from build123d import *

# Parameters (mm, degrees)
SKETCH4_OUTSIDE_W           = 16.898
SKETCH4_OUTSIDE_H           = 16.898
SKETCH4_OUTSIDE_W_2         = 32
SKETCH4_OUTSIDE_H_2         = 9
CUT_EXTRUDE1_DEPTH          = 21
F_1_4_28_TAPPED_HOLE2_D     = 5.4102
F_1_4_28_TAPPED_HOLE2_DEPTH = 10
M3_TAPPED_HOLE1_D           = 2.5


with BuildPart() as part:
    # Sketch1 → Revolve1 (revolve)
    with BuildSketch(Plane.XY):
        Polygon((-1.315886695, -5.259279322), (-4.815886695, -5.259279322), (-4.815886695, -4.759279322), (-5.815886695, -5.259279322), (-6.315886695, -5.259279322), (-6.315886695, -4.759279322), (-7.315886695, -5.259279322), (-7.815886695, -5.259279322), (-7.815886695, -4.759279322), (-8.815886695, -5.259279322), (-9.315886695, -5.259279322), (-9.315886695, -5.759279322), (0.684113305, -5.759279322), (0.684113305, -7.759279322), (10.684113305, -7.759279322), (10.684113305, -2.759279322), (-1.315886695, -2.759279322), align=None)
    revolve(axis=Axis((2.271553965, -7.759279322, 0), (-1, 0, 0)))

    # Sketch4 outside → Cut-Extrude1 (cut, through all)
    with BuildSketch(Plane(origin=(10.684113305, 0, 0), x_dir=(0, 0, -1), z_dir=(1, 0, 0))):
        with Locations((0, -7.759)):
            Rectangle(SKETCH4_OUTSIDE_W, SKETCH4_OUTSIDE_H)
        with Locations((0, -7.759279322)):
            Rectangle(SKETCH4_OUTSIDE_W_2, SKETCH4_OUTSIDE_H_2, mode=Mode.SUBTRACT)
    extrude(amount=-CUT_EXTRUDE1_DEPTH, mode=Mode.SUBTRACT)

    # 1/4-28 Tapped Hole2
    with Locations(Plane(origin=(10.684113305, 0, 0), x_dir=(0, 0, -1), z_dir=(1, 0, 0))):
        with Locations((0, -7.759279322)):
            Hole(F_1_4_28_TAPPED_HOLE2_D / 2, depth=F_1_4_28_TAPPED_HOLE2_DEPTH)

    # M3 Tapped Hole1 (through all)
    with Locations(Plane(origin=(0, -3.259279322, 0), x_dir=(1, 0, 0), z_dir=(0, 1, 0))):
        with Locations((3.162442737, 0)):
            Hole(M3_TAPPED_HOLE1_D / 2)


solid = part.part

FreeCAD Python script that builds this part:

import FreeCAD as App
import Part
import Sketcher

V = App.Vector
Q = App.Units.Quantity


def add_polygon(sketch, points):
    """Adds a closed chain of lines whose ends are joined by coincident constraints."""
    first, n = sketch.GeometryCount, len(points)
    for a, b in zip(points, points[1:] + points[:1]):
        sketch.addGeometry(Part.LineSegment(App.Vector(*a, 0), App.Vector(*b, 0)), False)
    for i in range(n):
        sketch.addConstraint(Sketcher.Constraint("Coincident", first + i, 2, first + (i + 1) % n, 1))

doc = App.newDocument("Part")
body = doc.addObject("PartDesign::Body", "Body")

sketch1 = body.newObject("Sketcher::SketchObject", "Sketch")
sketch1.AttachmentSupport = (doc.getObject("XY_Plane"), [""])
sketch1.MapMode = "FlatFace"
add_polygon(sketch1, [(-1.3, -5.3), (-4.8, -5.3), (-4.8, -4.8), (-5.8, -5.3), (-6.3, -5.3), (-6.3, -4.8), (-7.3, -5.3), (-7.8, -5.3), (-7.8, -4.8), (-8.8, -5.3), (-9.3, -5.3), (-9.3, -5.8), (0.7, -5.8), (0.7, -7.8), (10.7, -7.8), (10.7, -2.8), (-1.3, -2.8)])
sketch1.addGeometry(Part.LineSegment(V(10.7, -7.8, 0), V(-9.3, -7.8, 0)), True)
sketch1.addConstraint([
    Sketcher.Constraint("Horizontal", 0),
    Sketcher.Constraint("Vertical", 1),
    Sketcher.Constraint("Horizontal", 3),
    Sketcher.Constraint("Vertical", 4),
    Sketcher.Constraint("Horizontal", 6),
    Sketcher.Constraint("Vertical", 7),
    Sketcher.Constraint("Horizontal", 9),
    Sketcher.Constraint("Vertical", 10),
    Sketcher.Constraint("Horizontal", 11),
    Sketcher.Constraint("Vertical", 12),
    Sketcher.Constraint("Horizontal", 13),
    Sketcher.Constraint("Vertical", 14),
    Sketcher.Constraint("Horizontal", 15),
    Sketcher.Constraint("Vertical", 16),
    Sketcher.Constraint("Horizontal", 17),
    Sketcher.Constraint("Coincident", 17, 1, 13, 2),
    Sketcher.Constraint("Parallel", 2, 5),
    Sketcher.Constraint("Parallel", 5, 8),
    Sketcher.Constraint("Horizontal", 0, 2, 2, 2),
    Sketcher.Constraint("Horizontal", 1, 2, 4, 2),
    Sketcher.Constraint("Horizontal", 3, 2, 5, 2),
    Sketcher.Constraint("Horizontal", 4, 2, 7, 2),
    Sketcher.Constraint("Horizontal", 6, 2, 8, 2),
    Sketcher.Constraint("Vertical", 10, 2, 17, 2),
    Sketcher.Constraint("Equal", 3, 6),
    Sketcher.Constraint("Equal", 6, 9),
    Sketcher.Constraint("Equal", 11, 13),
    Sketcher.Constraint("Equal", 9, 1),
    Sketcher.Constraint("Equal", 7, 10),
    Sketcher.Constraint("DistanceX", 11, 1, 11, 2, Q("10 mm")),
    Sketcher.Constraint("DistanceX", 15, 2, 15, 1, Q("12 mm")),
    Sketcher.Constraint("DistanceY", 12, 2, 12, 1, Q("2 mm")),
    Sketcher.Constraint("DistanceY", 14, 1, 14, 2, Q("5 mm")),
    Sketcher.Constraint("DistanceX", 0, 2, 0, 1, Q("3.5 mm")),
    Sketcher.Constraint("DistanceX", 3, 2, 3, 1, Q("0.5 mm")),
    Sketcher.Constraint("DistanceY", 0, 2, -1, 1, Q("5.259279 mm")),
    Sketcher.Constraint("DistanceX", 0, 2, -1, 1, Q("4.815887 mm")),
])
revolution = body.newObject("PartDesign::Revolution", "Revolution")
revolution.Profile = sketch1
revolution.ReferenceAxis = (sketch1, ["Axis0"])
revolution.Angle = 360

sketch2 = body.newObject("Sketcher::SketchObject", "Sketch001")
sketch2.AttachmentSupport = (doc.getObject("YZ_Plane"), [""])
sketch2.MapMode = "FlatFace"
sketch2.AttachmentOffset = App.Placement(V(0, 0, 10.684113), App.Rotation())
add_polygon(sketch2, [(-12.3, 8.4), (-16.2, 8.4), (-16.2, -8.4), (-12.3, -8.4)])
add_polygon(sketch2, [(0.7, 8.4), (-3.3, 8.4), (-3.3, -8.4), (0.7, -8.4)])
sketch2.addConstraint([
    Sketcher.Constraint("Horizontal", 0),
    Sketcher.Constraint("Vertical", 1),
    Sketcher.Constraint("Horizontal", 2),
    Sketcher.Constraint("Vertical", 3),
    Sketcher.Constraint("Horizontal", 4),
    Sketcher.Constraint("Vertical", 5),
    Sketcher.Constraint("Horizontal", 6),
    Sketcher.Constraint("Vertical", 7),
    Sketcher.Constraint("Horizontal", 3, 2, 4, 2),
    Sketcher.Constraint("Horizontal", 2, 2, 5, 2),
    Sketcher.Constraint("DistanceX", 3, 2, 4, 2, Q("9 mm")),
    Sketcher.Constraint("DistanceY", 1, 2, 1, 1, Q("16.898 mm")),
    Sketcher.Constraint("DistanceX", -1, 1, 6, 2, Q("0.69 mm")),
    Sketcher.Constraint("DistanceX", 0, 2, -1, 1, Q("16.208 mm")),
    Sketcher.Constraint("DistanceY", -1, 1, 0, 2, Q("8.449 mm")),
    Sketcher.Constraint("DistanceX", 0, 2, 0, 1, Q("3.948721 mm")),
])
pocket1 = body.newObject("PartDesign::Pocket", "Pocket")
pocket1.Profile = sketch2
pocket1.Type = "ThroughAll"

sketch3 = body.newObject("Sketcher::SketchObject", "Sketch002")
sketch3.AttachmentSupport = (doc.getObject("YZ_Plane"), [""])
sketch3.MapMode = "FlatFace"
sketch3.AttachmentOffset = App.Placement(V(0, 0, 10.684113), App.Rotation())
sketch3.addGeometry(Part.Circle(V(-7.8, 0, 0), V(0, 0, 1), 2.7), False)
sketch3.addConstraint([
    Sketcher.Constraint("PointOnObject", 0, 3, -1),
    Sketcher.Constraint("Diameter", 0, Q("5.4102 mm")),
    Sketcher.Constraint("DistanceX", 0, 3, -1, 1, Q("7.759279 mm")),
])
doc.recompute()
hole = body.newObject("PartDesign::Hole", "Hole")
hole.Profile = sketch3
hole.ThreadType = "None"
hole.Diameter = 5.4102
hole.DepthType = "Dimension"
hole.Depth = 10
hole.DrillPoint = "Flat"

sketch4 = body.newObject("Sketcher::SketchObject", "Sketch003")
sketch4.AttachmentSupport = (doc.getObject("XZ_Plane"), [""])
sketch4.MapMode = "FlatFace"
sketch4.AttachmentOffset = App.Placement(V(0, 0, 3.259279), App.Rotation())
sketch4.addGeometry(Part.Circle(V(3.2, 0, 0), V(0, 0, 1), 1.2), False)
sketch4.addConstraint([
    Sketcher.Constraint("PointOnObject", 0, 3, -1),
    Sketcher.Constraint("Diameter", 0, Q("2.5 mm")),
    Sketcher.Constraint("DistanceX", -1, 1, 0, 3, Q("3.162443 mm")),
])
doc.recompute()
hole2 = body.newObject("PartDesign::Hole", "Hole001")
hole2.Profile = sketch4
hole2.ThreadType = "None"
hole2.Diameter = 2.5
hole2.DepthType = "ThroughAll"
hole2.Reversed = True

doc.recompute()
